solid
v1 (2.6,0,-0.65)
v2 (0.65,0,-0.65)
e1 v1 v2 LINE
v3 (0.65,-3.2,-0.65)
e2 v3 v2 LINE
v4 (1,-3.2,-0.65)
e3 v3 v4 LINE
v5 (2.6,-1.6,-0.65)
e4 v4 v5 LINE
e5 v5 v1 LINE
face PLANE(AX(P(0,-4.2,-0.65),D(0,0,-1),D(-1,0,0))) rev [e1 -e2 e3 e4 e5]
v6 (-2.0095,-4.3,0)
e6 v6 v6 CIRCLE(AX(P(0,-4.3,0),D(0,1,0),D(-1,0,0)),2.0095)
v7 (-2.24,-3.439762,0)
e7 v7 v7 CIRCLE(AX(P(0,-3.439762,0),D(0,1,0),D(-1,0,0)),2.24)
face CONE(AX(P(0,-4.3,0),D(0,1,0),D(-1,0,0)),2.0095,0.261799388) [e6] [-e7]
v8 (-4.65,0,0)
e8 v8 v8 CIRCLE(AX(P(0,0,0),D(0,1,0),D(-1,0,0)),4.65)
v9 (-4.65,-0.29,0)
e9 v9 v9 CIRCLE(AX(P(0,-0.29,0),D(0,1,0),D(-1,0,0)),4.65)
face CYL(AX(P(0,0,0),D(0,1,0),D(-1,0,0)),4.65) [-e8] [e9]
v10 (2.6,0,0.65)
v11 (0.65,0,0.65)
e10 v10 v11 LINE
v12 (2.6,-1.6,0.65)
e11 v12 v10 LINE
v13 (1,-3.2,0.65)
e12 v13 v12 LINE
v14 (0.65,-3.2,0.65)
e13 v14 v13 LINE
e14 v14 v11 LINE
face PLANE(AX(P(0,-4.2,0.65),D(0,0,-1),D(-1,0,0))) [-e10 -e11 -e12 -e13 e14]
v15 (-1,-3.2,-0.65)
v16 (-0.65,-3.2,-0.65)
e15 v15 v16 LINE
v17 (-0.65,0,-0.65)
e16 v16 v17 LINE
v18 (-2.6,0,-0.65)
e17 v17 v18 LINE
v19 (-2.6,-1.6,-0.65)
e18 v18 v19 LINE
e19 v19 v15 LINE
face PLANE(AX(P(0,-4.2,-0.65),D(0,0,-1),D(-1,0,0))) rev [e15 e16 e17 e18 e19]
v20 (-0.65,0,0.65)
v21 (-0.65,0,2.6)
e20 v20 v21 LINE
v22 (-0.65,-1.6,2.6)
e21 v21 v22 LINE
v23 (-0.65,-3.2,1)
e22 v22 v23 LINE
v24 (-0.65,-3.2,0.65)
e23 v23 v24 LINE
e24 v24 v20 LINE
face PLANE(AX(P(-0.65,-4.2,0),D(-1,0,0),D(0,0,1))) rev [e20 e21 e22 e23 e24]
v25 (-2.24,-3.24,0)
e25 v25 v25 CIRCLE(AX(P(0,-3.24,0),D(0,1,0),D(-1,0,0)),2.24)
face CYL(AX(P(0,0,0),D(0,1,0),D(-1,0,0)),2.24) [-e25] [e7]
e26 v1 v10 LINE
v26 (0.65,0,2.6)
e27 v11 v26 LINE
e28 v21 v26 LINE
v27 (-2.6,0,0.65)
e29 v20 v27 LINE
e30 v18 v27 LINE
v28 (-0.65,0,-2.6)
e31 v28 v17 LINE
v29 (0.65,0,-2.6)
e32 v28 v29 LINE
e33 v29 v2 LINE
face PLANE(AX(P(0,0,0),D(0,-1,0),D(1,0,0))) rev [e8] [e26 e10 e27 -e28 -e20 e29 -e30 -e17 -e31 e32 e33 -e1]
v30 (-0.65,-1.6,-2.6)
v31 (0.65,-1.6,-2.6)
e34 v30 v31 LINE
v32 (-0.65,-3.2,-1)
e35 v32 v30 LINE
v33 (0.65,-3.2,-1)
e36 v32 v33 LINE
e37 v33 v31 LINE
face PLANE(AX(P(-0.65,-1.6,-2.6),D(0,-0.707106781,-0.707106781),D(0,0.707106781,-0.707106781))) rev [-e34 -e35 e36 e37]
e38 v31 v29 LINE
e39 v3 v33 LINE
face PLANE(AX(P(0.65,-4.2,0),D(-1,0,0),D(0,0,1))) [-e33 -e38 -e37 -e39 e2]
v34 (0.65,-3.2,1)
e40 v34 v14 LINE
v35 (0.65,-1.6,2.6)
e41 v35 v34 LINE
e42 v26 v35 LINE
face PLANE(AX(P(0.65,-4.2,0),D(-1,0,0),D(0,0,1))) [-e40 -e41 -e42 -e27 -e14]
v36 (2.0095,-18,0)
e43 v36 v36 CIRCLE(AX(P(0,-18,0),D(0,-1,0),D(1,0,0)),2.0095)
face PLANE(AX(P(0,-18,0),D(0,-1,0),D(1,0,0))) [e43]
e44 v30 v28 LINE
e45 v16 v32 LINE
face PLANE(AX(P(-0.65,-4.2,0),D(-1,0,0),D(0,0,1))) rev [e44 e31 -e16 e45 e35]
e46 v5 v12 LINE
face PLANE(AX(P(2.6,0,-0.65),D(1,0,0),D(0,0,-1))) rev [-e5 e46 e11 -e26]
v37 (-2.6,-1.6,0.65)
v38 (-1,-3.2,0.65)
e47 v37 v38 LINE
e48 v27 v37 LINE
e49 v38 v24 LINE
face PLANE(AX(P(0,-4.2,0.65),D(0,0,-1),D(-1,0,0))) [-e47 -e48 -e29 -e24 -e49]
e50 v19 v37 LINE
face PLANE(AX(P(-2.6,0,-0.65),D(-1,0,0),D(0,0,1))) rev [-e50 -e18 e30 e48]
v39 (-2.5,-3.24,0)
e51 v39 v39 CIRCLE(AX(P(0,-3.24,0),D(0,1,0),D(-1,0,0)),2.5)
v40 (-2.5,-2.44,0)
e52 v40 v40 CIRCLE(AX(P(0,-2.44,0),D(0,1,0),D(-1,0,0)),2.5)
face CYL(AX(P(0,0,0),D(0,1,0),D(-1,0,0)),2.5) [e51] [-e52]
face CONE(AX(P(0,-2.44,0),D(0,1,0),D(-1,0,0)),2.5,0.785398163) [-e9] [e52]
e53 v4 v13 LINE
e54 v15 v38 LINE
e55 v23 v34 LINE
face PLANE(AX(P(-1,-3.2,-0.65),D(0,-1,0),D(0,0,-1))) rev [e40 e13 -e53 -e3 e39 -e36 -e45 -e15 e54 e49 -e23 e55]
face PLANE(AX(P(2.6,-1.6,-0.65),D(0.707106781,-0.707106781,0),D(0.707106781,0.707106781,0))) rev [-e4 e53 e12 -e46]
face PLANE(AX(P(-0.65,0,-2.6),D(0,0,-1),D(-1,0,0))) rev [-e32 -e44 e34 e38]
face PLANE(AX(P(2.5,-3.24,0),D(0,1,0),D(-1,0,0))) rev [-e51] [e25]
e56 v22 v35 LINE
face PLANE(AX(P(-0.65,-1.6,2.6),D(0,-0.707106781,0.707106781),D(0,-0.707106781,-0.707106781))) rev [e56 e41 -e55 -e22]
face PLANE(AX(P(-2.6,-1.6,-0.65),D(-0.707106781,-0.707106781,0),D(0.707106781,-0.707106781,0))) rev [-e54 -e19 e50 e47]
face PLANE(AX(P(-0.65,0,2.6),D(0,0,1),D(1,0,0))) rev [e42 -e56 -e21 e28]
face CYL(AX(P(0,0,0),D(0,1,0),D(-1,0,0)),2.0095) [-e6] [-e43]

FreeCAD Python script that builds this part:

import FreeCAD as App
import Part
import Sketcher
from FreeCAD import Vector
Q = App.Units.Quantity


def add_polygon(sketch, points):
    """Adds a closed chain of lines whose ends are joined by coincident constraints."""
    first, n = sketch.GeometryCount, len(points)
    for a, b in zip(points, points[1:] + points[:1]):
        sketch.addGeometry(Part.LineSegment(App.Vector(*a, 0), App.Vector(*b, 0)), False)
    for i in range(n):
        sketch.addConstraint(Sketcher.Constraint("Coincident", first + i, 2, first + (i + 1) % n, 1))

doc = App.newDocument("Part")
params = doc.addObject("Spreadsheet::Sheet", "Params")
for row, (alias, value) in enumerate([
    ("sketch1_height", "16 mm"),
    ("sketch1_height2", "11.7 mm"),
    ("sketch1_height3", "0.8 mm"),
    ("sketch1_width", "4.65 mm"),
    ("sketch1_width2", "0.26 mm"),
    ("revolution_angle", "360 deg"),
    ("sketch2_width", "2 mm"),
    ("sketch2_width2", "5.2 mm"),
    ("sketch2_height", "1.6 mm"),
    ("pocket1_length", "0.65 mm"),
    ("pocket1_length2", "0.65 mm"),
    ("sketch3_height", "2 mm"),
    ("sketch3_width", "1.6 mm"),
    ("sketch3_height2", "5.2 mm"),
    ("pocket2_length", "0.65 mm"),
    ("pocket2_length2", "0.65 mm"),
    ("pad1_length", "2 mm"),
], start=1):
    params.set(f"A{row}", alias)
    params.set(f"B{row}", "=" + value)
    params.setAlias(f"B{row}", alias)

body = doc.addObject("PartDesign::Body", "Body")

# Sketch on XY plane
sketch1 = body.newObject("Sketcher::SketchObject", "Sketch")
sketch1.AttachmentSupport = (doc.getObject("XY_Plane"), [""])
sketch1.MapMode = "FlatFace"
add_polygon(sketch1, [(4.65, 0), (0, 0), (0, -16), (2.01, -16), (2.01, -4.3), (2.24, -3.44), (2.24, -3.24), (2.5, -3.24), (2.5, -2.44), (4.65, -0.29)])  # lines 0-9
sketch1.addConstraint([
    Sketcher.Constraint("Horizontal", 0),
    Sketcher.Constraint("Vertical", 1),
    Sketcher.Constraint("Horizontal", 2),
    Sketcher.Constraint("Vertical", 3),
    Sketcher.Constraint("Vertical", 5),
    Sketcher.Constraint("Horizontal", 6),
    Sketcher.Constraint("Vertical", 7),
    Sketcher.Constraint("Vertical", 9),
    Sketcher.Constraint("Coincident", 0, 2, -1, 1),
    Sketcher.Constraint("DistanceY", 1, 2, 1, 1, 16.0),
    Sketcher.Constraint("Angle", 4, Q("75 deg")),
    Sketcher.Constraint("Angle", 8, Q("45 deg")),
    Sketcher.Constraint("DistanceY", 3, 1, 3, 2, 11.7),
    Sketcher.Constraint("DistanceY", 7, 1, 7, 2, 0.8),
    Sketcher.Constraint("DistanceX", 0, 2, 0, 1, 4.65),
    Sketcher.Constraint("DistanceX", 6, 1, 6, 2, 0.26),
    Sketcher.Constraint("DistanceY", 9, 1, 9, 2, 0.29),
    Sketcher.Constraint("DistanceX", -1, 1, 6, 2, 2.5),
    Sketcher.Constraint("DistanceX", 2, 1, 2, 2, 2.0095),
])
sketch1.setExpression("Constraints[19]", "Params.sketch1_height")
sketch1.setExpression("Constraints[22]", "Params.sketch1_height2")
sketch1.setExpression("Constraints[23]", "Params.sketch1_height3")
sketch1.setExpression("Constraints[24]", "Params.sketch1_width")
sketch1.setExpression("Constraints[25]", "Params.sketch1_width2")
revolution = body.newObject("PartDesign::Revolution", "Revolution")
revolution.Profile = sketch1
revolution.ReferenceAxis = (sketch1, ["V_Axis"])
revolution.setExpression("Angle", "Params.revolution_angle")

# Sketch on XY plane
sketch2 = body.newObject("Sketcher::SketchObject", "Sketch001")
sketch2.AttachmentSupport = (doc.getObject("XY_Plane"), [""])
sketch2.MapMode = "FlatFace"
add_polygon(sketch2, [(-1, -3.2), (1, -3.2), (2.6, -1.6), (2.6, 0), (-2.6, 0), (-2.6, -1.6)])  # lines 0-5
sketch2.addConstraint([
    Sketcher.Constraint("Horizontal", 0),
    Sketcher.Constraint("Vertical", 2),
    Sketcher.Constraint("Horizontal", 3),
    Sketcher.Constraint("Vertical", 4),
    Sketcher.Constraint("Symmetric", 2, 2, 3, 2, -1, 1),
    Sketcher.Constraint("Perpendicular", 1, 5),
    Sketcher.Constraint("Horizontal", 1, 2, 4, 2),
    Sketcher.Constraint("Equal", 1, 5),
    Sketcher.Constraint("DistanceX", 0, 1, 0, 2, 2.0),
    Sketcher.Constraint("DistanceX", 3, 2, 3, 1, 5.2),
    Sketcher.Constraint("DistanceY", 2, 1, 2, 2, 1.6),
])
sketch2.setExpression("Constraints[14]", "Params.sketch2_width")
sketch2.setExpression("Constraints[15]", "Params.sketch2_width2")
sketch2.setExpression("Constraints[16]", "Params.sketch2_height")
pocket1 = body.newObject("PartDesign::Pocket", "Pocket")
pocket1.Profile = sketch2
pocket1.Type = "TwoLengths"
pocket1.setExpression("Length", "Params.pocket1_length")
pocket1.setExpression("Length2", "Params.pocket1_length2")
pocket1.Reversed = True

# Sketch on YZ plane
sketch3 = body.newObject("Sketcher::SketchObject", "Sketch002")
sketch3.AttachmentSupport = (doc.getObject("YZ_Plane"), [""])
sketch3.MapMode = "FlatFace"
add_polygon(sketch3, [(-3.2, 1), (-3.2, -1), (-1.6, -2.6), (0, -2.6), (0, 2.6), (-1.6, 2.6)])  # lines 0-5
sketch3.addConstraint([
    Sketcher.Constraint("Vertical", 0),
    Sketcher.Constraint("Horizontal", 2),
    Sketcher.Constraint("Vertical", 3),
    Sketcher.Constraint("Horizontal", 4),
    Sketcher.Constraint("Symmetric", 2, 2, 3, 2, -1, 1),
    Sketcher.Constraint("Perpendicular", 1, 5),
    Sketcher.Constraint("Vertical", 1, 2, 4, 2),
    Sketcher.Constraint("Equal", 1, 5),
    Sketcher.Constraint("DistanceY", 0, 2, 0, 1, 2.0),
    Sketcher.Constraint("DistanceX", 2, 1, 2, 2, 1.6),
    Sketcher.Constraint("DistanceY", 3, 1, 3, 2, 5.2),
])
sketch3.setExpression("Constraints[14]", "Params.sketch3_height")
sketch3.setExpression("Constraints[15]", "Params.sketch3_width")
sketch3.setExpression("Constraints[16]", "Params.sketch3_height2")
pocket2 = body.newObject("PartDesign::Pocket", "Pocket001")
pocket2.Profile = sketch3
pocket2.Type = "TwoLengths"
pocket2.setExpression("Length", "Params.pocket2_length")
pocket2.setExpression("Length2", "Params.pocket2_length2")
pocket2.Reversed = True

# Sketch on XZ plane
sketch4 = body.newObject("Sketcher::SketchObject", "Sketch003")
sketch4.AttachmentSupport = (doc.getObject("XZ_Plane"), [""])
sketch4.MapMode = "FlatFace"
sketch4.AttachmentOffset = App.Placement(Vector(0, 0, 18), App.Rotation())
sketch4.addGeometry(Part.Circle(Vector(0, 0, 0), Vector(0, 0, 1), 2), False)
sketch4.addConstraint([
    Sketcher.Constraint("Coincident", 0, 3, -1, 1),
    Sketcher.Constraint("Diameter", 0, 4.019),
])
pad1 = body.newObject("PartDesign::Pad", "Pad")
pad1.Profile = sketch4
pad1.setExpression("Length", "Params.pad1_length")
pad1.Reversed = True

doc.recompute()
